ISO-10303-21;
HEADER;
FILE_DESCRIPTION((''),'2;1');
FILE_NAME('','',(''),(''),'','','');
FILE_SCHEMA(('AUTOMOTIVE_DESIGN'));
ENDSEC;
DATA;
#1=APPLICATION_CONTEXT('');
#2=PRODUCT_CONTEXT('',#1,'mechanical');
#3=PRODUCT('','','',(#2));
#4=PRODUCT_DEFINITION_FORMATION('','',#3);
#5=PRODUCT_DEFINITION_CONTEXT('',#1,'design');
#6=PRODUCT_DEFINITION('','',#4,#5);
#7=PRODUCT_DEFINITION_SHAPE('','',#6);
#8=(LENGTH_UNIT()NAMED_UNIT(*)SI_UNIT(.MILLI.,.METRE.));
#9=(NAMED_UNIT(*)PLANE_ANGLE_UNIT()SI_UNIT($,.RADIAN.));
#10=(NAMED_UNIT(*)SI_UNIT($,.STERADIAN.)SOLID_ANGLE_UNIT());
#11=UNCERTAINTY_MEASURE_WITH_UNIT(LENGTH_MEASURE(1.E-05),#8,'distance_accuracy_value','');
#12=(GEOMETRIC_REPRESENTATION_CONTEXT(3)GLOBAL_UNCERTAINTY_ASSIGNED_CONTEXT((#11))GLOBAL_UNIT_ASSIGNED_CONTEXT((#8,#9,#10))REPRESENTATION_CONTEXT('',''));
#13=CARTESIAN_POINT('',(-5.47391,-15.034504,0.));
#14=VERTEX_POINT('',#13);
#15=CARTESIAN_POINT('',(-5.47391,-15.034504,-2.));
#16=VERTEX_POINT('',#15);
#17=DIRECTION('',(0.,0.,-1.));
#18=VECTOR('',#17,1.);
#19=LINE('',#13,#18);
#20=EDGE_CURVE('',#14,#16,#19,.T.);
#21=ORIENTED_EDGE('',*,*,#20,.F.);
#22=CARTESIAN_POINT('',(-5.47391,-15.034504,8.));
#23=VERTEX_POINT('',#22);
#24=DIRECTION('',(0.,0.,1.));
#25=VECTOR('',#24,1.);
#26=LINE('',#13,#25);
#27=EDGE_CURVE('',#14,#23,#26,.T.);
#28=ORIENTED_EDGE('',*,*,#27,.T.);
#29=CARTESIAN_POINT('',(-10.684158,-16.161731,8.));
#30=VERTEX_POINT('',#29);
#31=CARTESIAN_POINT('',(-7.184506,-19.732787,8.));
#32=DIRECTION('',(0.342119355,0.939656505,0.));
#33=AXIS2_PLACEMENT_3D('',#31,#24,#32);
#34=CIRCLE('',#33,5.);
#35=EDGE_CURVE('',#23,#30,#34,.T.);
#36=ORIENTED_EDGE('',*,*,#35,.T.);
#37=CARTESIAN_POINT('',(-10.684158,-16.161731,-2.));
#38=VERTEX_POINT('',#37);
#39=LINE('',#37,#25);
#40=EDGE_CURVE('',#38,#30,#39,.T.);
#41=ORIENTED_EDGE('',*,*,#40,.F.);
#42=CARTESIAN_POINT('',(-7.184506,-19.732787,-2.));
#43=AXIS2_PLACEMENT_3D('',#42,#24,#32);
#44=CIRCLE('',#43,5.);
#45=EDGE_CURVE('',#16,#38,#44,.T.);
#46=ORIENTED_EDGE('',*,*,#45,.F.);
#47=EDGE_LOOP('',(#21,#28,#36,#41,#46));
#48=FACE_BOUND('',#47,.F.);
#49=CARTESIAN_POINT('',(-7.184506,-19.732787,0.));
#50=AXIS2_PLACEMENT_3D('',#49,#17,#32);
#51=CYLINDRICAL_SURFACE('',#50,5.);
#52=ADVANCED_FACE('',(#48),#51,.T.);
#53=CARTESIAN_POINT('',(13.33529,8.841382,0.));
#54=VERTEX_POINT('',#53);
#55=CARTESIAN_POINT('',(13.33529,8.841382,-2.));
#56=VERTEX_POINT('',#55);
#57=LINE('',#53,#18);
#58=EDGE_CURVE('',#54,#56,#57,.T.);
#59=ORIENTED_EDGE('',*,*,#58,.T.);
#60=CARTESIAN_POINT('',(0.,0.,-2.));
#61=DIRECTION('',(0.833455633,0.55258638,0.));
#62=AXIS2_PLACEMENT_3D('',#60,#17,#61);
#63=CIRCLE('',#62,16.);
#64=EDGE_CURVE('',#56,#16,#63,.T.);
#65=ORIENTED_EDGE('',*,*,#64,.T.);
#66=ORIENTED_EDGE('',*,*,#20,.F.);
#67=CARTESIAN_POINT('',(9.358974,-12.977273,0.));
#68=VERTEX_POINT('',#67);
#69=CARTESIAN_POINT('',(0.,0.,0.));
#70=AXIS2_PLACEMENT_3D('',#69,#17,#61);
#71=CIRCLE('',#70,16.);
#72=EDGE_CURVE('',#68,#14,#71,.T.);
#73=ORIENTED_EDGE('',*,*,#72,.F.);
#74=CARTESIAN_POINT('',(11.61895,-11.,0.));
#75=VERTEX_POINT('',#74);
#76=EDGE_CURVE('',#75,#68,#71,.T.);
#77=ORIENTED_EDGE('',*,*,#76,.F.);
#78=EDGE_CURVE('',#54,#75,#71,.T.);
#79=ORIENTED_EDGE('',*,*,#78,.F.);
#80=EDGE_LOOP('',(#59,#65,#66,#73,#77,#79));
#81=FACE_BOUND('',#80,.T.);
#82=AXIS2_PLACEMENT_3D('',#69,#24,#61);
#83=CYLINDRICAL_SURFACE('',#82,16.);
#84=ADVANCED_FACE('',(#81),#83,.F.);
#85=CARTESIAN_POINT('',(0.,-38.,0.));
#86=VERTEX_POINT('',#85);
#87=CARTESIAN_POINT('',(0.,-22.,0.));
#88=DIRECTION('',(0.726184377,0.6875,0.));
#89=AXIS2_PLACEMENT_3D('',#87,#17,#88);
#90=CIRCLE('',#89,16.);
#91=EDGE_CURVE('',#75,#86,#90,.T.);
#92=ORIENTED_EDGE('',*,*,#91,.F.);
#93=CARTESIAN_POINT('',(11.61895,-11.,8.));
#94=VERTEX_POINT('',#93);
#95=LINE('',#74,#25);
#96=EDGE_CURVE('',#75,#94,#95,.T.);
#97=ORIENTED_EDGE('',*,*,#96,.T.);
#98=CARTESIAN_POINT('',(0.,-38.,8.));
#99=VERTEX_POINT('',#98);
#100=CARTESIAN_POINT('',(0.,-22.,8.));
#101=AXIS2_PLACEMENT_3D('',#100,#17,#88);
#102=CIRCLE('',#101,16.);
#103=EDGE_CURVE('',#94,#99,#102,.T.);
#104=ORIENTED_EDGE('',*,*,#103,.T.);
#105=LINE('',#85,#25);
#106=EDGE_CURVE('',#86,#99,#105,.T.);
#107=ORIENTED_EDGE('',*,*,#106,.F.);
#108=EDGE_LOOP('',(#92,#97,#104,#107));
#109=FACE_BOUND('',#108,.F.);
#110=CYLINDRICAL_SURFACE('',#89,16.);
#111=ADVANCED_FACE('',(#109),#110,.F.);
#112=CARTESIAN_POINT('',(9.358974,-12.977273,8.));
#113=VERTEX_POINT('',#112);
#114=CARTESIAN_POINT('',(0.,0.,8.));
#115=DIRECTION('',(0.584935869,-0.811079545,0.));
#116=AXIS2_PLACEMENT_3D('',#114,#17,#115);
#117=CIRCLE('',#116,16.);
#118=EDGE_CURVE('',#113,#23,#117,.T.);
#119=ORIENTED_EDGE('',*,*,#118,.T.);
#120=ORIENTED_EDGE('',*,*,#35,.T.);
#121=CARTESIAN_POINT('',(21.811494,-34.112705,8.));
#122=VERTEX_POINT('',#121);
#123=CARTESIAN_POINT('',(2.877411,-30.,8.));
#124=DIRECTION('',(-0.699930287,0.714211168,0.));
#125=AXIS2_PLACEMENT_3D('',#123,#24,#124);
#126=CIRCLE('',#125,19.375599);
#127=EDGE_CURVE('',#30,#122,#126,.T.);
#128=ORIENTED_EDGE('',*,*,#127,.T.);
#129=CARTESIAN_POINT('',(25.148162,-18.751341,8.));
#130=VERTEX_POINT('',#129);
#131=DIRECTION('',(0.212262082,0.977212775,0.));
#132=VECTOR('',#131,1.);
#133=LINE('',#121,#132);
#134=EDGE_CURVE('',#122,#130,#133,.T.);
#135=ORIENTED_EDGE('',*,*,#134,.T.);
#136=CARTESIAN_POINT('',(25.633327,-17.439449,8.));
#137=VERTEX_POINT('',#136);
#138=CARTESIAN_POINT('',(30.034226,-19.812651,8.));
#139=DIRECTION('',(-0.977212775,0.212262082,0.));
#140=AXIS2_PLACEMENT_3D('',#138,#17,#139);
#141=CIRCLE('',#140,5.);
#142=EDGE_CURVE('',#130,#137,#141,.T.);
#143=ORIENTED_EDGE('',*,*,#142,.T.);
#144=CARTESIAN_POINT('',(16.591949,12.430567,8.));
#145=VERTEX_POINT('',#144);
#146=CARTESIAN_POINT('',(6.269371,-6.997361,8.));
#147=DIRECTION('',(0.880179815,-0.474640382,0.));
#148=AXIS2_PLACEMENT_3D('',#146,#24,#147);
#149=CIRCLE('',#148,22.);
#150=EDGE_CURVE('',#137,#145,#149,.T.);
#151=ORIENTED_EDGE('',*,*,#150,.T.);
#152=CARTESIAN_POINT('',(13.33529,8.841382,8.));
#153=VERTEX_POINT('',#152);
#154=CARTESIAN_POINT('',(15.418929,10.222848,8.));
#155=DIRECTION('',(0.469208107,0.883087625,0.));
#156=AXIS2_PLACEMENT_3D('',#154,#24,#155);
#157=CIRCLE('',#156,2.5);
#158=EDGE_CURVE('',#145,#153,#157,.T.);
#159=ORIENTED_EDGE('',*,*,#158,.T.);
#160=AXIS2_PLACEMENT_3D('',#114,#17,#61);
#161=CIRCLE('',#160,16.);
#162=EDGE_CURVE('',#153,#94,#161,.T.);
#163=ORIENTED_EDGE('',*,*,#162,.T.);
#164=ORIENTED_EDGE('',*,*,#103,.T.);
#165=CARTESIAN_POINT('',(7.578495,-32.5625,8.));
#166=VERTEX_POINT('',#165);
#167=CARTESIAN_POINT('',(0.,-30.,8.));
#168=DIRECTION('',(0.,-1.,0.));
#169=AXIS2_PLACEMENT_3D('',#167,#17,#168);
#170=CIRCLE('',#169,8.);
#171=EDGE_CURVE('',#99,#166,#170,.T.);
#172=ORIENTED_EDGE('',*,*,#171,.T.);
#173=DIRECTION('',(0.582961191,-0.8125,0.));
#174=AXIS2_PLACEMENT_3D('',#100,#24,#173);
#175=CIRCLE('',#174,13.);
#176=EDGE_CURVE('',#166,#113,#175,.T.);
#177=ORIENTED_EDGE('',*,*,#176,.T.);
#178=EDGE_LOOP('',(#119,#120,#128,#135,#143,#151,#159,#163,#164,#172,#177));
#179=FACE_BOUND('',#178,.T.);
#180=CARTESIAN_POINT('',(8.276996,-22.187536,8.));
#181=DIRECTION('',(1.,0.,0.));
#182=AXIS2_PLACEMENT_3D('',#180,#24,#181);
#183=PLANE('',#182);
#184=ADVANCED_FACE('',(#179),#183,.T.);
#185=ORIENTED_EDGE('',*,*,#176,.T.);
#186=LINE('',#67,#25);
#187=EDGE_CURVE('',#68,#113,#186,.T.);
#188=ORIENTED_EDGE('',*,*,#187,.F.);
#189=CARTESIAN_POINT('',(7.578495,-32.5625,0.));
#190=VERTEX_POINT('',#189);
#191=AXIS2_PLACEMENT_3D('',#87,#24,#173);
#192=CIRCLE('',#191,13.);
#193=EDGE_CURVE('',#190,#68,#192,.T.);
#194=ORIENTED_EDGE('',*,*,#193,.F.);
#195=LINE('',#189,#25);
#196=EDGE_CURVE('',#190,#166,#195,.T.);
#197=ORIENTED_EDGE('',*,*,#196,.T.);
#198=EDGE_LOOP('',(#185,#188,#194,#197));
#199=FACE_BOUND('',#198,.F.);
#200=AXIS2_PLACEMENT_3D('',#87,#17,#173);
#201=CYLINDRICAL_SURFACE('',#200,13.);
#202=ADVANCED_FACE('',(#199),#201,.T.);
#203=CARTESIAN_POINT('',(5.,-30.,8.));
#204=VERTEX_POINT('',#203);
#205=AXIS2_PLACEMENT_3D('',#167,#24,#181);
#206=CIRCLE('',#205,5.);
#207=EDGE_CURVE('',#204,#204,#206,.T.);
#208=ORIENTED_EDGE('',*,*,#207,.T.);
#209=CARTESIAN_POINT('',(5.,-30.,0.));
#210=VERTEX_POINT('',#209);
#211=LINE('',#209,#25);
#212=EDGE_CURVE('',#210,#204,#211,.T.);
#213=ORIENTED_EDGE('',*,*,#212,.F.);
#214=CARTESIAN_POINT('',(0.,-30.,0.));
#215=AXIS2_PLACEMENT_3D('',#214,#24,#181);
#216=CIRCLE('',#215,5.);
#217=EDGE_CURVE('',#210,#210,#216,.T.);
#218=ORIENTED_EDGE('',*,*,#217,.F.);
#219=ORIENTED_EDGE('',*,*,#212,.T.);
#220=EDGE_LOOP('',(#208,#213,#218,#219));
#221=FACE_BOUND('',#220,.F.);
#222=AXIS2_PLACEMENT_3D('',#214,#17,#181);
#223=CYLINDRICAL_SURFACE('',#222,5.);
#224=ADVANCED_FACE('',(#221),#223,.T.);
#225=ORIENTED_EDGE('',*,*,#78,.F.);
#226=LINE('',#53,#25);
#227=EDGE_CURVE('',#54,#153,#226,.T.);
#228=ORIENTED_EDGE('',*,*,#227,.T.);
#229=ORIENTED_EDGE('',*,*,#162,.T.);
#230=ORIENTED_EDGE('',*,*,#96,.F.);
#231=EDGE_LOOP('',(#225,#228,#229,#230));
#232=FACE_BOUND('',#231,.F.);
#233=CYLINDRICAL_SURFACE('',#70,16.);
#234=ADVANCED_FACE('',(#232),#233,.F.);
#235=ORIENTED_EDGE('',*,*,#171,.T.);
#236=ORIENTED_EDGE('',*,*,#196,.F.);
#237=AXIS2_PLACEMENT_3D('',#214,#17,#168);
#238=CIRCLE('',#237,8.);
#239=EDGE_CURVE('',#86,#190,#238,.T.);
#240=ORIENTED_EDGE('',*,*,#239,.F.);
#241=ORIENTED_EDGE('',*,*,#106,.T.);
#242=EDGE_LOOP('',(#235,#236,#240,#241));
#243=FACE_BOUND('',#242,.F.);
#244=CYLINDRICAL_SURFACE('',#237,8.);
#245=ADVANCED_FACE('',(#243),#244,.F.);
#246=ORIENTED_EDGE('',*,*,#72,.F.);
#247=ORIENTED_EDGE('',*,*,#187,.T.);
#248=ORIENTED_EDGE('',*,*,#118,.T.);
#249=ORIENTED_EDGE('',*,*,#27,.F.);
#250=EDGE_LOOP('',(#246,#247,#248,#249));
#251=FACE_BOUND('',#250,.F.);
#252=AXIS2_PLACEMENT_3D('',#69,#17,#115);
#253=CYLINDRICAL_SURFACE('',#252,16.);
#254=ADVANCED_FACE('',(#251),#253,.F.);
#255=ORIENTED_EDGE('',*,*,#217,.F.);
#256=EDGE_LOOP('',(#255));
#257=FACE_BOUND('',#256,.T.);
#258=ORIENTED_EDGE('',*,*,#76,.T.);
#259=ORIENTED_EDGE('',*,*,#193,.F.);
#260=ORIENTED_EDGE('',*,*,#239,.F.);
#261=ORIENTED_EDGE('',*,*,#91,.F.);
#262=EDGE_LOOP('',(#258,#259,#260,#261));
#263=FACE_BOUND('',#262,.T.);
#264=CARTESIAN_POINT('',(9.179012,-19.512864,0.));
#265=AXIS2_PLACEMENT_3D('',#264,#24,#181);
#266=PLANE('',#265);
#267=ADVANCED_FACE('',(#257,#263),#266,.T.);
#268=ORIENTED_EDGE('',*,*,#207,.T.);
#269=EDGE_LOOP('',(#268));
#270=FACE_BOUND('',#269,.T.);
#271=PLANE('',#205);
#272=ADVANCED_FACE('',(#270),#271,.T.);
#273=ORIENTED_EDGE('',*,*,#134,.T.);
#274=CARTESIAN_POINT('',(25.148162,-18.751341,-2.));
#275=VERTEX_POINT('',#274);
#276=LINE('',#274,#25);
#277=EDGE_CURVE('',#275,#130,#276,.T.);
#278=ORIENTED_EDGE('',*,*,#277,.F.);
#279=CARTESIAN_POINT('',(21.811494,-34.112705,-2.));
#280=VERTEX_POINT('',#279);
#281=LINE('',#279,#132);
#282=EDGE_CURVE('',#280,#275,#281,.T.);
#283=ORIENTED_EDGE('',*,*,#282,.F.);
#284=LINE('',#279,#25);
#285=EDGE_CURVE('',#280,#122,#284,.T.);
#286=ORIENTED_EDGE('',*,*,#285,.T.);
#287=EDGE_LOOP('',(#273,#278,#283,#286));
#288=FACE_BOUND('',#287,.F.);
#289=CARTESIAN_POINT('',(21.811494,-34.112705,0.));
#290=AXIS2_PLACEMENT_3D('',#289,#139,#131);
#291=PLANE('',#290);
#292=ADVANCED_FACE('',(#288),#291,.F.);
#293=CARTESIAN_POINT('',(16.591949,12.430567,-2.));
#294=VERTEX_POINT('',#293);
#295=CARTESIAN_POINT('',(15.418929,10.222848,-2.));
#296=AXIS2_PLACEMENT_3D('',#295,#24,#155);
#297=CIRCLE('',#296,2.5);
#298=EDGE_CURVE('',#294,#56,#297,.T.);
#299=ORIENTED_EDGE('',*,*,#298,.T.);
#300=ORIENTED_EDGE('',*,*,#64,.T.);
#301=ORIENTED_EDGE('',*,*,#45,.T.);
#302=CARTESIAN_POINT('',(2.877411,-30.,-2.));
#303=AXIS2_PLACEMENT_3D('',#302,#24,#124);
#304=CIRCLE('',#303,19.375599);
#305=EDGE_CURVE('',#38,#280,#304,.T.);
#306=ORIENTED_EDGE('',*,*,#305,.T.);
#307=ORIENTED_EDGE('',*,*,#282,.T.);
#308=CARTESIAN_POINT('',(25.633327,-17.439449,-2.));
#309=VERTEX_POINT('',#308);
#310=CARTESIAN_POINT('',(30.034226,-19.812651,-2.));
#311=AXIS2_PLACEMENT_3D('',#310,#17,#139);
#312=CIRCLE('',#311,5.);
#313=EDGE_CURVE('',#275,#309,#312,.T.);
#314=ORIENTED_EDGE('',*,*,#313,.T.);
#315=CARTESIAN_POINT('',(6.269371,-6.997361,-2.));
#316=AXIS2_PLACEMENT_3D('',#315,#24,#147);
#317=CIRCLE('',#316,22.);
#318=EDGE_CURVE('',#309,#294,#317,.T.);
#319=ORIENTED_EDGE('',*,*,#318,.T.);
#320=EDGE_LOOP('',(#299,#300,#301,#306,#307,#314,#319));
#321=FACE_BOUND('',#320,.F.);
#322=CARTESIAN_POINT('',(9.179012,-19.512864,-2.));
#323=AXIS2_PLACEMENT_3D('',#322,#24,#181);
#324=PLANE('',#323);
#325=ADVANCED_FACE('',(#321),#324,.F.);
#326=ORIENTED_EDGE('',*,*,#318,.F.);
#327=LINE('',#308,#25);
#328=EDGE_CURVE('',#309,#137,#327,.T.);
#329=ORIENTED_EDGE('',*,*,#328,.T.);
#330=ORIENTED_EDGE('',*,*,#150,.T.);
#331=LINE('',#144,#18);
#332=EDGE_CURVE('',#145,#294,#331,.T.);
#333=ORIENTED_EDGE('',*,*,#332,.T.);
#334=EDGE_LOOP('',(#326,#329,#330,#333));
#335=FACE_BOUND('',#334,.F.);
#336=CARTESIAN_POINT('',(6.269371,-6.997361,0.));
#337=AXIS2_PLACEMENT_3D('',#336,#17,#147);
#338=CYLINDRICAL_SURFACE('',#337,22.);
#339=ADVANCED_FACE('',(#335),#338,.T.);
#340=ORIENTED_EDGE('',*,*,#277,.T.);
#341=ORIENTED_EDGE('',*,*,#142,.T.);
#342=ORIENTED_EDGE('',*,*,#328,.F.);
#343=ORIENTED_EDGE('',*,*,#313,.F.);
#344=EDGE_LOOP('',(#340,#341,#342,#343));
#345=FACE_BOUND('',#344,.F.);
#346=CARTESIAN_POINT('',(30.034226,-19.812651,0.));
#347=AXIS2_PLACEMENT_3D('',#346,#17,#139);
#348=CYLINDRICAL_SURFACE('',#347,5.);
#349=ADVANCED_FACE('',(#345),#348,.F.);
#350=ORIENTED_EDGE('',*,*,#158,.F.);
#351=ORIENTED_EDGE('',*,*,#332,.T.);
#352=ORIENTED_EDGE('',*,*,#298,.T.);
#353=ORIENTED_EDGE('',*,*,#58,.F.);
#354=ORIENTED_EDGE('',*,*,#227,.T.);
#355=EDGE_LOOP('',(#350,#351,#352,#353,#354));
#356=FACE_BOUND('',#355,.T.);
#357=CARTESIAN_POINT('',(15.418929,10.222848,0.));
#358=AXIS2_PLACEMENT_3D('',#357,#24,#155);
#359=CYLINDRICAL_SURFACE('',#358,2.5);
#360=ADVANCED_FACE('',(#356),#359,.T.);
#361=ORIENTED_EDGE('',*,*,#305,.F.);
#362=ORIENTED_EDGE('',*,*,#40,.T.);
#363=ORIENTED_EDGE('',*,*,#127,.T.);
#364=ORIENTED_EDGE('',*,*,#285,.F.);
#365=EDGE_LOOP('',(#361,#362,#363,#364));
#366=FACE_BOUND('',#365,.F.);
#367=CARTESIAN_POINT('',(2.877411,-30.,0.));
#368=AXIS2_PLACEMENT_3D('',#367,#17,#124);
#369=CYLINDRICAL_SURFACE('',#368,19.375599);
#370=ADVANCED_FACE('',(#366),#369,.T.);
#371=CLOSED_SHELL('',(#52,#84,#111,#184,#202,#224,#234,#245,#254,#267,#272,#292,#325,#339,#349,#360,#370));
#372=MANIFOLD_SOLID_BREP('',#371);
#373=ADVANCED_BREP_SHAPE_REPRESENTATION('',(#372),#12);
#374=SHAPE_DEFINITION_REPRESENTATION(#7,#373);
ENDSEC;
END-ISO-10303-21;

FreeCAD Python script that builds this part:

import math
import FreeCAD as App
import Part
import Sketcher
from FreeCAD import Vector

doc = App.newDocument("Part")
body = doc.addObject("PartDesign::Body", "Body")

sketch1 = doc.addObject("Sketcher::SketchObject", "Sketch")
body.addObject(sketch1)
sketch1.AttachmentSupport = (doc.XY_Plane, [""])
sketch1.MapMode = "FlatFace"
sketch1.addGeometry([
    Part.ArcOfCircle(Part.Circle(Vector(0, 0, 0), Vector(0, 0, 1), 16), math.radians(-110.006049), math.radians(33.544631)),
    Part.ArcOfCircle(Part.Circle(Vector(-7.184506, -19.732787, 0), Vector(0, 0, 1), 5), math.radians(69.993951), math.radians(134.421411)),
    Part.ArcOfCircle(Part.Circle(Vector(2.877411, -30, 0), Vector(0, 0, 1), 19.375599), math.radians(134.421411), math.radians(347.745051)),
    Part.LineSegment(Vector(21.811494, -34.112705, 0), Vector(25.148162, -18.751341, 0)),
    Part.ArcOfCircle(Part.Circle(Vector(30.034226, -19.812651, 0), Vector(0, 0, 1), 5), math.radians(151.664062), math.radians(167.745051)),
    Part.ArcOfCircle(Part.Circle(Vector(6.269371, -6.997361, 0), Vector(0, 0, 1), 22), math.radians(-28.335938), math.radians(62.017095)),
    Part.ArcOfCircle(Part.Circle(Vector(15.418929, 10.222848, 0), Vector(0, 0, 1), 2.5), math.radians(62.017095), math.radians(213.544631)),
], False)
sketch1.addConstraint([
    Sketcher.Constraint("Tangent", 0, 1, 1, 1),
    Sketcher.Constraint("Tangent", 1, 2, 2, 1),
    Sketcher.Constraint("Tangent", 2, 2, 3, 1),
    Sketcher.Constraint("Tangent", 3, 2, 4, 2),
    Sketcher.Constraint("Tangent", 4, 1, 5, 1),
    Sketcher.Constraint("Tangent", 5, 2, 6, 1),
    Sketcher.Constraint("Tangent", 6, 2, 0, 2),
    Sketcher.Constraint("Coincident", 0, 3, -1, 1),
    Sketcher.Constraint("Equal", 1, 4),
    Sketcher.Constraint("Radius", 0, 16.0),
    Sketcher.Constraint("Radius", 1, 5.0),
    Sketcher.Constraint("Radius", 5, 22.0),
    Sketcher.Constraint("Radius", 6, 2.5),
    Sketcher.Constraint("DistanceY", 2, 3, -1, 1, 30.0),
    Sketcher.Constraint("Radius", 2, 19.375599),
    Sketcher.Constraint("DistanceX", 1, 3, 2, 2, 28.996),
    Sketcher.Constraint("DistanceY", 4, 3, 6, 3, 30.035499),
    Sketcher.Constraint("DistanceY", 2, 2, 0, 1, 19.078201),
    Sketcher.Constraint("DistanceX", 4, 1, 4, 3, 4.400899),
])
pad1 = doc.addObject("PartDesign::Pad", "Pad")
body.addObject(pad1)
pad1.Profile = sketch1
pad1.Length = 2
pad1.Reversed = True

sketch2 = doc.addObject("Sketcher::SketchObject", "Sketch001")
body.addObject(sketch2)
sketch2.AttachmentSupport = (doc.XY_Plane, [""])
sketch2.MapMode = "FlatFace"
sketch2.addGeometry([
    Part.ArcOfCircle(Part.Circle(Vector(0, 0, 0), Vector(0, 0, 1), 16), math.radians(-110.006049), math.radians(-54.20154)),
    Part.ArcOfCircle(Part.Circle(Vector(-7.184506, -19.732787, 0), Vector(0, 0, 1), 5), math.radians(69.993951), math.radians(134.421411)),
    Part.ArcOfCircle(Part.Circle(Vector(2.877411, -30, 0), Vector(0, 0, 1), 19.375599), math.radians(134.421411), math.radians(347.745051)),
    Part.LineSegment(Vector(21.811494, -34.112705, 0), Vector(25.148162, -18.751341, 0)),
    Part.ArcOfCircle(Part.Circle(Vector(30.034226, -19.812651, 0), Vector(0, 0, 1), 5), math.radians(151.664062), math.radians(167.745051)),
    Part.ArcOfCircle(Part.Circle(Vector(6.269371, -6.997361, 0), Vector(0, 0, 1), 22), math.radians(-28.335938), math.radians(62.017095)),
    Part.ArcOfCircle(Part.Circle(Vector(15.418929, 10.222848, 0), Vector(0, 0, 1), 2.5), math.radians(62.017095), math.radians(213.544631)),
    Part.ArcOfCircle(Part.Circle(Vector(0, 0, 0), Vector(0, 0, 1), 16), math.radians(-43.432537), math.radians(33.544631)),
    Part.ArcOfCircle(Part.Circle(Vector(0, -22, 0), Vector(0, 0, 1), 16), math.radians(-90), math.radians(43.432537)),
    Part.ArcOfCircle(Part.Circle(Vector(0, -30, 0), Vector(0, 0, 1), 8), math.radians(-18.681825), math.radians(270)),
    Part.ArcOfCircle(Part.Circle(Vector(0, -22, 0), Vector(0, 0, 1), 13), math.radians(-54.340912), math.radians(43.952036)),
    Part.Circle(Vector(0, -30, 0), Vector(0, 0, 1), 5),
], False)
sketch2.addConstraint([
    Sketcher.Constraint("Tangent", 0, 1, 1, 1),
    Sketcher.Constraint("Tangent", 1, 2, 2, 1),
    Sketcher.Constraint("Tangent", 2, 2, 3, 1),
    Sketcher.Constraint("Tangent", 3, 2, 4, 2),
    Sketcher.Constraint("Tangent", 4, 1, 5, 1),
    Sketcher.Constraint("Tangent", 5, 2, 6, 1),
    Sketcher.Constraint("Tangent", 6, 2, 7, 2),
    Sketcher.Constraint("Coincident", 7, 1, 8, 2),
    Sketcher.Constraint("Tangent", 8, 1, 9, 2),
    Sketcher.Constraint("Coincident", 9, 1, 10, 1),
    Sketcher.Constraint("Coincident", 10, 2, 0, 2),
    Sketcher.Constraint("Coincident", 0, 3, -1, 1),
    Sketcher.Constraint("Coincident", 7, 3, -1, 1),
    Sketcher.Constraint("Coincident", 10, 3, 8, 3),
    Sketcher.Constraint("Coincident", 11, 3, 9, 3),
    Sketcher.Constraint("Equal", 1, 4),
    Sketcher.Constraint("Equal", 0, 7),
    Sketcher.Constraint("Equal", 7, 8),
    Sketcher.Constraint("Equal", 4, 11),
    Sketcher.Constraint("PointOnObject", 8, 3, -2),
    Sketcher.Constraint("PointOnObject", 9, 3, -2),
    Sketcher.Constraint("Horizontal", 2, 3, 9, 3),
    Sketcher.Constraint("Diameter", 11, 10.0),
    Sketcher.Constraint("Radius", 0, 16.0),
    Sketcher.Constraint("Radius", 5, 22.0),
    Sketcher.Constraint("Radius", 9, 8.0),
    Sketcher.Constraint("Radius", 10, 13.0),
    Sketcher.Constraint("Radius", 6, 2.5),
    Sketcher.Constraint("DistanceY", 2, 3, -1, 1, 30.0),
    Sketcher.Constraint("Radius", 2, 19.375599),
    Sketcher.Constraint("DistanceY", 4, 3, 6, 3, 30.035499),
    Sketcher.Constraint("DistanceX", 4, 1, 4, 3, 4.400899),
    Sketcher.Constraint("Distance", 3, 15.71957),
    Sketcher.Constraint("DistanceX", -1, 1, 2, 3, 2.877411),
])
pad2 = doc.addObject("PartDesign::Pad", "Pad001")
body.addObject(pad2)
pad2.Profile = sketch2
pad2.Length = 8

doc.recompute()
